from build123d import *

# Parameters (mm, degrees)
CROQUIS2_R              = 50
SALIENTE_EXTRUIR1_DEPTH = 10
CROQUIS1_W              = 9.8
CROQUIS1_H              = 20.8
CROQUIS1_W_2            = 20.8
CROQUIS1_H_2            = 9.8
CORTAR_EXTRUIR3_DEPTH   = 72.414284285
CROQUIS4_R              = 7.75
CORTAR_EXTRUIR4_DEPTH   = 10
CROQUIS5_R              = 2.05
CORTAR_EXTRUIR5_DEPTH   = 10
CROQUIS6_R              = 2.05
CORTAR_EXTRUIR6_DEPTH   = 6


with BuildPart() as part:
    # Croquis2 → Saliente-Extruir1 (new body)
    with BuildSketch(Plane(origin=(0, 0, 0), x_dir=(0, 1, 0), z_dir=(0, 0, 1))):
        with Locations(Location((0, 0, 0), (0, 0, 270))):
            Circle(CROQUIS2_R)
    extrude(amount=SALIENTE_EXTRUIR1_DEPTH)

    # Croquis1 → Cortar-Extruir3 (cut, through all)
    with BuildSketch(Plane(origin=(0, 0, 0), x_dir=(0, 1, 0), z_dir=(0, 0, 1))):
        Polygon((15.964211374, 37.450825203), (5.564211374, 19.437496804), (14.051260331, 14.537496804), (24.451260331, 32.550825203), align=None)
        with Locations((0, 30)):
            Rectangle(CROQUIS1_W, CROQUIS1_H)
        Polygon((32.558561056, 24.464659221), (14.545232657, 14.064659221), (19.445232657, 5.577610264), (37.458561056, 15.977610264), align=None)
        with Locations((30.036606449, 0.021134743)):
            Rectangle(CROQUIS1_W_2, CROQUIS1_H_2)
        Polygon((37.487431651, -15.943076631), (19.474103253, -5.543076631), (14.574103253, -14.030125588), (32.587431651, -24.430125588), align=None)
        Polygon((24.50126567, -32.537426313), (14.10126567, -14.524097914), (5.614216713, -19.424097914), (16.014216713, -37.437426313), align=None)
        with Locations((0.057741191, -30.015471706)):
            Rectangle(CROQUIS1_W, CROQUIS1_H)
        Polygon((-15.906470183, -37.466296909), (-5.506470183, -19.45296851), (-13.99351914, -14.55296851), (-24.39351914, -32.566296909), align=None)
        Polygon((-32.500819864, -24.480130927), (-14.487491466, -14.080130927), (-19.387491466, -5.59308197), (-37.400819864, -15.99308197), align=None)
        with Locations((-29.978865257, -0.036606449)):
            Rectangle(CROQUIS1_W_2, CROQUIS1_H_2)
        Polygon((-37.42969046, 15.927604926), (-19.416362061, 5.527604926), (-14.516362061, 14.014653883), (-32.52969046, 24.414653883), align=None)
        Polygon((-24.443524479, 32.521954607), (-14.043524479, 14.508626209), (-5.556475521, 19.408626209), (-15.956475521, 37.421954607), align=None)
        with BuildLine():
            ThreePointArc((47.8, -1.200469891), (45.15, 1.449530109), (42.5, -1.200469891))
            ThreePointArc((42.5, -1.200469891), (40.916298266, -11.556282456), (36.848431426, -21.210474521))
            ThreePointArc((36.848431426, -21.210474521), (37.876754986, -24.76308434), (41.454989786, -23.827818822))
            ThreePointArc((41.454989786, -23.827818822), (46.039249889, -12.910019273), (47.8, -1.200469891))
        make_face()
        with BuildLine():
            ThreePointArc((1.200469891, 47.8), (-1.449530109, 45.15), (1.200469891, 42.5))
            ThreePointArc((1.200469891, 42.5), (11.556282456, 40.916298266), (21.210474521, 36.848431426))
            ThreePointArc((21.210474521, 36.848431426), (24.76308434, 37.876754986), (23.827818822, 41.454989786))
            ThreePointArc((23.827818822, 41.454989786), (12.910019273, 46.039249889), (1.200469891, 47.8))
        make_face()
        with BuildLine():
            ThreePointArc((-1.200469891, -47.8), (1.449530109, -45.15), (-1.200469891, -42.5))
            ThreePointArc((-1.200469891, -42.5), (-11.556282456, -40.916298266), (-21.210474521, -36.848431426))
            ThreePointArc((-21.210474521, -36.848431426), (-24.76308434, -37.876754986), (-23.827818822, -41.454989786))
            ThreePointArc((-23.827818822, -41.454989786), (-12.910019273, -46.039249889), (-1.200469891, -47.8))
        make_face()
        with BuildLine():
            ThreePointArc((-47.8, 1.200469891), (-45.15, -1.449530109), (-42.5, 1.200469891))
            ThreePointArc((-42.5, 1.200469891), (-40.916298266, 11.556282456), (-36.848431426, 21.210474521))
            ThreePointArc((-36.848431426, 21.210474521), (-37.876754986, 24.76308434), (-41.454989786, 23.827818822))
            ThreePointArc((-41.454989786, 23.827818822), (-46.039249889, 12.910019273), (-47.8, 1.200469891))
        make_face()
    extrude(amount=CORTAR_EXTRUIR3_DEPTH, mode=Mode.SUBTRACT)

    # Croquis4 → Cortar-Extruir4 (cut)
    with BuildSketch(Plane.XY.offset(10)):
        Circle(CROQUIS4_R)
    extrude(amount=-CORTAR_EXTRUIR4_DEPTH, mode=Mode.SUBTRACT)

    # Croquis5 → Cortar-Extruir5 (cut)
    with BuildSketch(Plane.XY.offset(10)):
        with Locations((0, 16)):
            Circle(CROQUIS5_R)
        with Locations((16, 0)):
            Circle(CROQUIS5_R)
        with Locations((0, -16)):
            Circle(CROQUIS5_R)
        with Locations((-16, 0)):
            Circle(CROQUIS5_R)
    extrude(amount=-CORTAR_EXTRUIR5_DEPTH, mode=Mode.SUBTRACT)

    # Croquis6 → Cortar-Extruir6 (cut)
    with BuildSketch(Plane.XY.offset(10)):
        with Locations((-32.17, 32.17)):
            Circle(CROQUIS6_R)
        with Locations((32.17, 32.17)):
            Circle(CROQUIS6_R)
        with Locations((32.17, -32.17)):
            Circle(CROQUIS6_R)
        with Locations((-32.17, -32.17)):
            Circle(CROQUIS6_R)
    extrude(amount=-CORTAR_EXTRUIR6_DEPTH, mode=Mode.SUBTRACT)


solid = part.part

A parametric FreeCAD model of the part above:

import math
import FreeCAD as App
import Part
import Sketcher
Q = App.Units.Quantity

doc = App.newDocument("Part")
body = doc.addObject("PartDesign::Body", "Body")

# Sketch on XY plane
sketch1 = doc.addObject("Sketcher::SketchObject", "Sketch")
body.addObject(sketch1)
sketch1.AttachmentSupport = (doc.XY_Plane, [""])
sketch1.MapMode = "FlatFace"
sketch1.addGeometry(Part.Circle(App.Vector(0, 0, 0), App.Vector(0, 0, 1), 50), False)
sketch1.addConstraint([
    Sketcher.Constraint("Coincident", 0, 3, -1, 1),
    Sketcher.Constraint("Diameter", 0, 100.0),
])
pad1 = doc.addObject("PartDesign::Pad", "Pad")
body.addObject(pad1)
pad1.Profile = sketch1
pad1.Length = 10

# Sketch on XY plane
sketch2 = doc.addObject("Sketcher::SketchObject", "Sketch001")
body.addObject(sketch2)
sketch2.AttachmentSupport = (doc.XY_Plane, [""])
sketch2.MapMode = "FlatFace"
sketch2.addGeometry([
    Part.LineSegment(App.Vector(-37.5, 16, 0), App.Vector(-19.4, 5.6, 0)),  # 0
    Part.LineSegment(App.Vector(-19.4, 5.6, 0), App.Vector(-14.5, 14.1, 0)),  # 1
    Part.LineSegment(App.Vector(-14.5, 14.1, 0), App.Vector(-32.6, 24.5, 0)),  # 2
    Part.LineSegment(App.Vector(-32.6, 24.5, 0), App.Vector(-37.5, 16, 0)),  # 3
    Part.LineSegment(App.Vector(-40.4, -4.9, 0), App.Vector(-19.6, -4.9, 0)),  # 4
    Part.LineSegment(App.Vector(-19.6, -4.9, 0), App.Vector(-19.6, 4.9, 0)),  # 5
    Part.LineSegment(App.Vector(-19.6, 4.9, 0), App.Vector(-40.4, 4.9, 0)),  # 6
    Part.LineSegment(App.Vector(-40.4, 4.9, 0), App.Vector(-40.4, -4.9, 0)),  # 7
    Part.LineSegment(App.Vector(-24.5, 32.6, 0), App.Vector(-14.1, 14.5, 0)),  # 8
    Part.LineSegment(App.Vector(-14.1, 14.5, 0), App.Vector(-5.6, 19.4, 0)),  # 9
    Part.LineSegment(App.Vector(-5.6, 19.4, 0), App.Vector(-16, 37.5, 0)),  # 10
    Part.LineSegment(App.Vector(-16, 37.5, 0), App.Vector(-24.5, 32.6, 0)),  # 11
    Part.LineSegment(App.Vector(-4.9, 19.6, 0), App.Vector(4.9, 19.6, 0)),  # 12
    Part.LineSegment(App.Vector(4.9, 19.6, 0), App.Vector(4.9, 40.4, 0)),  # 13
    Part.LineSegment(App.Vector(4.9, 40.4, 0), App.Vector(-4.9, 40.4, 0)),  # 14
    Part.LineSegment(App.Vector(-4.9, 40.4, 0), App.Vector(-4.9, 19.6, 0)),  # 15
    Part.LineSegment(App.Vector(15.9, 37.5, 0), App.Vector(5.5, 19.5, 0)),  # 16
    Part.LineSegment(App.Vector(5.5, 19.5, 0), App.Vector(14, 14.6, 0)),  # 17
    Part.LineSegment(App.Vector(14, 14.6, 0), App.Vector(24.4, 32.6, 0)),  # 18
    Part.LineSegment(App.Vector(24.4, 32.6, 0), App.Vector(15.9, 37.5, 0)),  # 19
    Part.LineSegment(App.Vector(32.5, 24.5, 0), App.Vector(14.5, 14.1, 0)),  # 20
    Part.LineSegment(App.Vector(14.5, 14.1, 0), App.Vector(19.4, 5.6, 0)),  # 21
    Part.LineSegment(App.Vector(19.4, 5.6, 0), App.Vector(37.4, 16, 0)),  # 22
    Part.LineSegment(App.Vector(37.4, 16, 0), App.Vector(32.5, 24.5, 0)),  # 23
    Part.LineSegment(App.Vector(19.6, -4.8, 0), App.Vector(40.4, -4.8, 0)),  # 24
    Part.LineSegment(App.Vector(40.4, -4.8, 0), App.Vector(40.4, 5, 0)),  # 25
    Part.LineSegment(App.Vector(40.4, 5, 0), App.Vector(19.6, 5, 0)),  # 26
    Part.LineSegment(App.Vector(19.6, 5, 0), App.Vector(19.6, -4.8, 0)),  # 27
    Part.LineSegment(App.Vector(37.5, -15.9, 0), App.Vector(19.5, -5.5, 0)),  # 28
    Part.LineSegment(App.Vector(19.5, -5.5, 0), App.Vector(14.6, -14, 0)),  # 29
    Part.LineSegment(App.Vector(14.6, -14, 0), App.Vector(32.6, -24.4, 0)),  # 30
    Part.LineSegment(App.Vector(32.6, -24.4, 0), App.Vector(37.5, -15.9, 0)),  # 31
    Part.LineSegment(App.Vector(24.5, -32.5, 0), App.Vector(14.1, -14.5, 0)),  # 32
    Part.LineSegment(App.Vector(14.1, -14.5, 0), App.Vector(5.6, -19.4, 0)),  # 33
    Part.LineSegment(App.Vector(5.6, -19.4, 0), App.Vector(16, -37.4, 0)),  # 34
    Part.LineSegment(App.Vector(16, -37.4, 0), App.Vector(24.5, -32.5, 0)),  # 35
    Part.LineSegment(App.Vector(-4.9, -40.4, 0), App.Vector(4.9, -40.4, 0)),  # 36
    Part.LineSegment(App.Vector(4.9, -40.4, 0), App.Vector(4.9, -19.6, 0)),  # 37
    Part.LineSegment(App.Vector(4.9, -19.6, 0), App.Vector(-4.9, -19.6, 0)),  # 38
    Part.LineSegment(App.Vector(-4.9, -19.6, 0), App.Vector(-4.9, -40.4, 0)),  # 39
    Part.LineSegment(App.Vector(-15.9, -37.4, 0), App.Vector(-5.5, -19.4, 0)),  # 40
    Part.LineSegment(App.Vector(-5.5, -19.4, 0), App.Vector(-14, -14.5, 0)),  # 41
    Part.LineSegment(App.Vector(-14, -14.5, 0), App.Vector(-24.4, -32.5, 0)),  # 42
    Part.LineSegment(App.Vector(-24.4, -32.5, 0), App.Vector(-15.9, -37.4, 0)),  # 43
    Part.LineSegment(App.Vector(-32.5, -24.4, 0), App.Vector(-14.5, -14, 0)),  # 44
    Part.LineSegment(App.Vector(-14.5, -14, 0), App.Vector(-19.4, -5.6, 0)),  # 45
    Part.LineSegment(App.Vector(-19.4, -5.6, 0), App.Vector(-37.4, -16, 0)),  # 46
    Part.LineSegment(App.Vector(-37.4, -16, 0), App.Vector(-32.5, -24.4, 0)),  # 47
    Part.ArcOfCircle(Part.Circle(App.Vector(1.2, 45.1, 0), App.Vector(0, 0, 1), 2.6), math.radians(90), math.radians(270)),  # 48
    Part.ArcOfCircle(Part.Circle(App.Vector(0, 0, 0), App.Vector(0, 0, 1), 42.5), math.radians(60), math.radians(88)),  # 49
    Part.ArcOfCircle(Part.Circle(App.Vector(22.5, 39.2, 0), App.Vector(0, 0, 1), 2.6), math.radians(-118), math.radians(59)),  # 50
    Part.ArcOfCircle(Part.Circle(App.Vector(0, 0, 0), App.Vector(0, 0, 1), 47.8), math.radians(60), math.radians(89)),  # 51
    Part.ArcOfCircle(Part.Circle(App.Vector(-45.1, 1.2, 0), App.Vector(0, 0, 1), 2.6), math.radians(180), math.radians(360)),  # 52
    Part.ArcOfCircle(Part.Circle(App.Vector(0, 0, 0), App.Vector(0, 0, 1), 42.5), math.radians(150), math.radians(178)),  # 53
    Part.ArcOfCircle(Part.Circle(App.Vector(-39.2, 22.5, 0), App.Vector(0, 0, 1), 2.6), math.radians(-28), math.radians(149)),  # 54
    Part.ArcOfCircle(Part.Circle(App.Vector(0, 0, 0), App.Vector(0, 0, 1), 47.8), math.radians(150), math.radians(179)),  # 55
    Part.ArcOfCircle(Part.Circle(App.Vector(45.1, -1.2, 0), App.Vector(0, 0, 1), 2.6), math.radians(0), math.radians(180)),  # 56
    Part.ArcOfCircle(Part.Circle(App.Vector(0, 0, 0), App.Vector(0, 0, 1), 42.5), math.radians(-30), math.radians(-2)),  # 57
    Part.ArcOfCircle(Part.Circle(App.Vector(39.2, -22.5, 0), App.Vector(0, 0, 1), 2.6), math.radians(152), math.radians(329)),  # 58
    Part.ArcOfCircle(Part.Circle(App.Vector(0, 0, 0), App.Vector(0, 0, 1), 47.8), math.radians(-30), math.radians(-1)),  # 59
    Part.ArcOfCircle(Part.Circle(App.Vector(-1.2, -45.1, 0), App.Vector(0, 0, 1), 2.6), math.radians(-90), math.radians(90)),  # 60
    Part.ArcOfCircle(Part.Circle(App.Vector(0, 0, 0), App.Vector(0, 0, 1), 42.5), math.radians(-120), math.radians(-92)),  # 61
    Part.ArcOfCircle(Part.Circle(App.Vector(-22.5, -39.2, 0), App.Vector(0, 0, 1), 2.6), math.radians(62), math.radians(239)),  # 62
    Part.ArcOfCircle(Part.Circle(App.Vector(0, 0, 0), App.Vector(0, 0, 1), 47.8), math.radians(-120), math.radians(-91)),  # 63
], False)
sketch2.addConstraint([
    Sketcher.Constraint("Coincident", 0, 2, 1, 1),
    Sketcher.Constraint("Coincident", 1, 2, 2, 1),
    Sketcher.Constraint("Coincident", 2, 2, 3, 1),
    Sketcher.Constraint("Coincident", 3, 2, 0, 1),
    Sketcher.Constraint("Coincident", 4, 2, 5, 1),
    Sketcher.Constraint("Coincident", 5, 2, 6, 1),
    Sketcher.Constraint("Coincident", 6, 2, 7, 1),
    Sketcher.Constraint("Coincident", 7, 2, 4, 1),
    Sketcher.Constraint("Coincident", 8, 2, 9, 1),
    Sketcher.Constraint("Coincident", 9, 2, 10, 1),
    Sketcher.Constraint("Coincident", 10, 2, 11, 1),
    Sketcher.Constraint("Coincident", 11, 2, 8, 1),
    Sketcher.Constraint("Coincident", 12, 2, 13, 1),
    Sketcher.Constraint("Coincident", 13, 2, 14, 1),
    Sketcher.Constraint("Coincident", 14, 2, 15, 1),
    Sketcher.Constraint("Coincident", 15, 2, 12, 1),
    Sketcher.Constraint("Coincident", 16, 2, 17, 1),
    Sketcher.Constraint("Coincident", 17, 2, 18, 1),
    Sketcher.Constraint("Coincident", 18, 2, 19, 1),
    Sketcher.Constraint("Coincident", 19, 2, 16, 1),
    Sketcher.Constraint("Coincident", 20, 2, 21, 1),
    Sketcher.Constraint("Coincident", 21, 2, 22, 1),
    Sketcher.Constraint("Coincident", 22, 2, 23, 1),
    Sketcher.Constraint("Coincident", 23, 2, 20, 1),
    Sketcher.Constraint("Coincident", 24, 2, 25, 1),
    Sketcher.Constraint("Coincident", 25, 2, 26, 1),
    Sketcher.Constraint("Coincident", 26, 2, 27, 1),
    Sketcher.Constraint("Coincident", 27, 2, 24, 1),
    Sketcher.Constraint("Coincident", 28, 2, 29, 1),
    Sketcher.Constraint("Coincident", 29, 2, 30, 1),
    Sketcher.Constraint("Coincident", 30, 2, 31, 1),
    Sketcher.Constraint("Coincident", 31, 2, 28, 1),
    Sketcher.Constraint("Coincident", 32, 2, 33, 1),
    Sketcher.Constraint("Coincident", 33, 2, 34, 1),
    Sketcher.Constraint("Coincident", 34, 2, 35, 1),
    Sketcher.Constraint("Coincident", 35, 2, 32, 1),
    Sketcher.Constraint("Coincident", 36, 2, 37, 1),
    Sketcher.Constraint("Coincident", 37, 2, 38, 1),
    Sketcher.Constraint("Coincident", 38, 2, 39, 1),
    Sketcher.Constraint("Coincident", 39, 2, 36, 1),
    Sketcher.Constraint("Coincident", 40, 2, 41, 1),
    Sketcher.Constraint("Coincident", 41, 2, 42, 1),
    Sketcher.Constraint("Coincident", 42, 2, 43, 1),
    Sketcher.Constraint("Coincident", 43, 2, 40, 1),
    Sketcher.Constraint("Coincident", 44, 2, 45, 1),
    Sketcher.Constraint("Coincident", 45, 2, 46, 1),
    Sketcher.Constraint("Coincident", 46, 2, 47, 1),
    Sketcher.Constraint("Coincident", 47, 2, 44, 1),
    Sketcher.Constraint("Coincident", 48, 2, 49, 2),
    Sketcher.Constraint("Coincident", 49, 1, 50, 1),
    Sketcher.Constraint("Coincident", 50, 2, 51, 1),
    Sketcher.Constraint("Coincident", 51, 2, 48, 1),
    Sketcher.Constraint("Coincident", 52, 2, 53, 2),
    Sketcher.Constraint("Coincident", 53, 1, 54, 1),
    Sketcher.Constraint("Coincident", 54, 2, 55, 1),
    Sketcher.Constraint("Coincident", 55, 2, 52, 1),
    Sketcher.Constraint("Coincident", 56, 2, 57, 2),
    Sketcher.Constraint("Coincident", 57, 1, 58, 1),
    Sketcher.Constraint("Coincident", 58, 2, 59, 1),
    Sketcher.Constraint("Coincident", 59, 2, 56, 1),
    Sketcher.Constraint("Coincident", 60, 2, 61, 2),
    Sketcher.Constraint("Coincident", 61, 1, 62, 1),
    Sketcher.Constraint("Coincident", 62, 2, 63, 1),
    Sketcher.Constraint("Coincident", 63, 2, 60, 1),
    Sketcher.Constraint("Horizontal", 4),
    Sketcher.Constraint("Vertical", 5),
    Sketcher.Constraint("Horizontal", 6),
    Sketcher.Constraint("Vertical", 7),
    Sketcher.Constraint("Horizontal", 12),
    Sketcher.Constraint("Vertical", 13),
    Sketcher.Constraint("Horizontal", 14),
    Sketcher.Constraint("Vertical", 15),
    Sketcher.Constraint("Horizontal", 24),
    Sketcher.Constraint("Vertical", 25),
    Sketcher.Constraint("Horizontal", 26),
    Sketcher.Constraint("Vertical", 27),
    Sketcher.Constraint("Horizontal", 36),
    Sketcher.Constraint("Vertical", 37),
    Sketcher.Constraint("Horizontal", 38),
    Sketcher.Constraint("Vertical", 39),
    Sketcher.Constraint("Coincident", 49, 3, -1, 1),
    Sketcher.Constraint("Coincident", 51, 3, -1, 1),
    Sketcher.Constraint("Coincident", 53, 3, -1, 1),
    Sketcher.Constraint("Coincident", 55, 3, -1, 1),
    Sketcher.Constraint("Coincident", 57, 3, -1, 1),
    Sketcher.Constraint("Coincident", 59, 3, -1, 1),
    Sketcher.Constraint("Coincident", 61, 3, -1, 1),
    Sketcher.Constraint("Coincident", 63, 3, -1, 1),
    Sketcher.Constraint("Equal", 48, 50),
    Sketcher.Constraint("Equal", 50, 52),
    Sketcher.Constraint("Equal", 49, 53),
    Sketcher.Constraint("Equal", 52, 54),
    Sketcher.Constraint("Equal", 51, 55),
    Sketcher.Constraint("Equal", 54, 56),
    Sketcher.Constraint("Equal", 53, 57),
    Sketcher.Constraint("Equal", 56, 58),
    Sketcher.Constraint("Equal", 55, 59),
    Sketcher.Constraint("Equal", 58, 60),
    Sketcher.Constraint("Equal", 57, 61),
    Sketcher.Constraint("Equal", 60, 62),
    Sketcher.Constraint("Equal", 59, 63),
    Sketcher.Constraint("Symmetric", 52, 3, 56, 3, -1, 1),
    Sketcher.Constraint("Symmetric", 54, 3, 58, 3, -1, 1),
    Sketcher.Constraint("Symmetric", 48, 3, 60, 3, -1, 1),
    Sketcher.Constraint("Symmetric", 50, 3, 62, 3, -1, 1),
    Sketcher.Constraint("Perpendicular", 0, 1),
    Sketcher.Constraint("Perpendicular", 1, 2),
    Sketcher.Constraint("Perpendicular", 2, 3),
    Sketcher.Constraint("Perpendicular", 8, 9),
    Sketcher.Constraint("Perpendicular", 9, 10),
    Sketcher.Constraint("Perpendicular", 10, 11),
    Sketcher.Constraint("Parallel", 3, 16),
    Sketcher.Constraint("Perpendicular", 16, 17),
    Sketcher.Constraint("Perpendicular", 17, 18),
    Sketcher.Constraint("Perpendicular", 18, 19),
    Sketcher.Constraint("Parallel", 11, 20),
    Sketcher.Constraint("Perpendicular", 20, 21),
    Sketcher.Constraint("Perpendicular", 21, 22),
    Sketcher.Constraint("Perpendicular", 22, 23),
    Sketcher.Constraint("Parallel", 19, 28),
    Sketcher.Constraint("Perpendicular", 28, 29),
    Sketcher.Constraint("Perpendicular", 29, 30),
    Sketcher.Constraint("Perpendicular", 30, 31),
    Sketcher.Constraint("Parallel", 23, 32),
    Sketcher.Constraint("Perpendicular", 32, 33),
    Sketcher.Constraint("Perpendicular", 33, 34),
    Sketcher.Constraint("Perpendicular", 34, 35),
    Sketcher.Constraint("Parallel", 31, 40),
    Sketcher.Constraint("Perpendicular", 40, 41),
    Sketcher.Constraint("Perpendicular", 41, 42),
    Sketcher.Constraint("Perpendicular", 42, 43),
    Sketcher.Constraint("Parallel", 35, 44),
    Sketcher.Constraint("Perpendicular", 44, 45),
    Sketcher.Constraint("Perpendicular", 45, 46),
    Sketcher.Constraint("Perpendicular", 46, 47),
    Sketcher.Constraint("Horizontal", 52, 2, 55, 2),
    Sketcher.Constraint("Vertical", 48, 2, 51, 2),
    Sketcher.Constraint("Equal", 6, 24),
    Sketcher.Constraint("Equal", 14, 36),
    Sketcher.Constraint("Equal", 38, 5),
    Sketcher.Constraint("Equal", 26, 13),
    Sketcher.Constraint("Equal", 7, 25),
    Sketcher.Constraint("Equal", 15, 37),
    Sketcher.Constraint("Equal", 2, 8),
    Sketcher.Constraint("Equal", 3, 9),
    Sketcher.Constraint("Equal", 10, 16),
    Sketcher.Constraint("Equal", 11, 17),
    Sketcher.Constraint("Equal", 18, 20),
    Sketcher.Constraint("Equal", 19, 21),
    Sketcher.Constraint("Equal", 22, 28),
    Sketcher.Constraint("Equal", 23, 29),
    Sketcher.Constraint("Equal", 30, 32),
    Sketcher.Constraint("Equal", 31, 33),
    Sketcher.Constraint("Equal", 34, 40),
    Sketcher.Constraint("Equal", 35, 41),
    Sketcher.Constraint("Equal", 42, 44),
    Sketcher.Constraint("Equal", 43, 45),
    Sketcher.Constraint("Angle", 0, Q("-30 deg")),
    Sketcher.Constraint("Angle", 8, Q("-60 deg")),
    Sketcher.Constraint("Radius", 48, 2.65),
    Sketcher.Constraint("DistanceX", 4, 1, 4, 2, 20.8),
    Sketcher.Constraint("DistanceX", 12, 1, 12, 2, 9.8),
    Sketcher.Constraint("Distance", 0, 20.8),
    Sketcher.Constraint("Distance", 1, 9.8),
    Sketcher.Constraint("DistanceX", 4, 2, -1, 1, 19.6),
    Sketcher.Constraint("DistanceY", 4, 2, -1, 1, 4.9),
    Sketcher.Constraint("DistanceY", -1, 1, 48, 2, 42.5),
    Sketcher.Constraint("Radius", 49, 42.516951),
    Sketcher.Constraint("DistanceX", -1, 1, 48, 3, 1.20047),
    Sketcher.Constraint("DistanceX", -1, 1, 50, 3, 22.459021),
    Sketcher.Constraint("DistanceY", -1, 1, 52, 3, 1.20047),
    Sketcher.Constraint("DistanceY", -1, 1, 54, 3, 22.459021),
    Sketcher.Constraint("DistanceY", -1, 1, 0, 2, 5.564211),
    Sketcher.Constraint("DistanceX", 8, 2, -1, 1, 14.064659),
    Sketcher.Constraint("DistanceY", -1, 1, 10, 2, 37.458561),
    Sketcher.Constraint("DistanceY", -1, 1, 18, 2, 32.587432),
    Sketcher.Constraint("DistanceX", -1, 1, 24, 2, 40.415472),
    Sketcher.Constraint("DistanceY", 24, 2, -1, 1, 4.842259),
    Sketcher.Constraint("DistanceX", -1, 1, 28, 2, 19.452969),
    Sketcher.Constraint("DistanceY", 28, 2, -1, 1, 5.50647),
    Sketcher.Constraint("DistanceX", -1, 1, 32, 2, 14.080131),
    Sketcher.Constraint("DistanceY", 32, 2, -1, 1, 14.487491),
    Sketcher.Constraint("DistanceY", 42, 2, -1, 1, 32.52969),
    Sketcher.Constraint("DistanceY", -1, 1, 49, 1, 36.848431),
    Sketcher.Constraint("DistanceX", 53, 1, -1, 1, 36.848431),
    Sketcher.Constraint("DistanceX", 0, 2, -1, 1, 19.437497),
    Sketcher.Constraint("DistanceX", -1, 1, 12, 2, 4.878865),
    Sketcher.Constraint("DistanceY", -1, 1, 12, 2, 19.636606),
    Sketcher.Constraint("DistanceX", -1, 1, 16, 2, 5.543077),
    Sketcher.Constraint("DistanceX", -1, 1, 20, 2, 14.524098),
    Sketcher.Constraint("DistanceY", -1, 1, 20, 2, 14.101266),
    Sketcher.Constraint("DistanceX", -1, 1, 36, 2, 4.936606),
    Sketcher.Constraint("DistanceY", 36, 2, -1, 1, 40.378865),
    Sketcher.Constraint("DistanceX", 40, 2, -1, 1, 5.527605),
    Sketcher.Constraint("DistanceX", 44, 2, -1, 1, 14.508626),
    Sketcher.Constraint("DistanceY", 44, 2, -1, 1, 14.043524),
])
pocket1 = doc.addObject("PartDesign::Pocket", "Pocket")
body.addObject(pocket1)
pocket1.Profile = sketch2
pocket1.Type = "ThroughAll"
pocket1.Reversed = True

# Sketch on XY plane
sketch3 = doc.addObject("Sketcher::SketchObject", "Sketch002")
body.addObject(sketch3)
sketch3.AttachmentSupport = (doc.XY_Plane, [""])
sketch3.MapMode = "FlatFace"
sketch3.AttachmentOffset = App.Placement(App.Vector(0, 0, 10), App.Rotation())
sketch3.addGeometry(Part.Circle(App.Vector(0, 0, 0), App.Vector(0, 0, 1), 8), False)
sketch3.addConstraint([
    Sketcher.Constraint("Coincident", 0, 3, -1, 1),
    Sketcher.Constraint("Diameter", 0, 15.5),
])
pocket2 = doc.addObject("PartDesign::Pocket", "Pocket001")
body.addObject(pocket2)
pocket2.Profile = sketch3
pocket2.Length = 10

# Sketch on XY plane
sketch4 = doc.addObject("Sketcher::SketchObject", "Sketch003")
body.addObject(sketch4)
sketch4.AttachmentSupport = (doc.XY_Plane, [""])
sketch4.MapMode = "FlatFace"
sketch4.AttachmentOffset = App.Placement(App.Vector(0, 0, 10), App.Rotation())
sketch4.addGeometry([
    Part.Circle(App.Vector(0, 16, 0), App.Vector(0, 0, 1), 2),
    Part.Circle(App.Vector(16, 0, 0), App.Vector(0, 0, 1), 2),
    Part.Circle(App.Vector(0, -16, 0), App.Vector(0, 0, 1), 2),
    Part.Circle(App.Vector(-16, 0, 0), App.Vector(0, 0, 1), 2),
], False)
sketch4.addConstraint([
    Sketcher.Constraint("Equal", 0, 1),
    Sketcher.Constraint("Equal", 1, 2),
    Sketcher.Constraint("Equal", 2, 3),
    Sketcher.Constraint("Symmetric", 0, 3, 2, 3, -1, 1),
    Sketcher.Constraint("Symmetric", 1, 3, 3, 3, -1, 1),
    Sketcher.Constraint("PointOnObject", 0, 3, -2),
    Sketcher.Constraint("PointOnObject", 1, 3, -1),
    Sketcher.Constraint("Diameter", 0, 4.1),
    Sketcher.Constraint("DistanceY", -1, 1, 0, 3, 16.0),
    Sketcher.Constraint("DistanceX", -1, 1, 1, 3, 16.0),
])
pocket3 = doc.addObject("PartDesign::Pocket", "Pocket002")
body.addObject(pocket3)
pocket3.Profile = sketch4
pocket3.Length = 10

# Sketch on XY plane
sketch5 = doc.addObject("Sketcher::SketchObject", "Sketch004")
body.addObject(sketch5)
sketch5.AttachmentSupport = (doc.XY_Plane, [""])
sketch5.MapMode = "FlatFace"
sketch5.AttachmentOffset = App.Placement(App.Vector(0, 0, 10), App.Rotation())
sketch5.addGeometry([
    Part.Circle(App.Vector(-32.2, 32.2, 0), App.Vector(0, 0, 1), 2),
    Part.Circle(App.Vector(32.2, 32.2, 0), App.Vector(0, 0, 1), 2),
    Part.Circle(App.Vector(32.2, -32.2, 0), App.Vector(0, 0, 1), 2),
    Part.Circle(App.Vector(-32.2, -32.2, 0), App.Vector(0, 0, 1), 2),
], False)
sketch5.addConstraint([
    Sketcher.Constraint("Equal", 0, 1),
    Sketcher.Constraint("Equal", 1, 2),
    Sketcher.Constraint("Equal", 2, 3),
    Sketcher.Constraint("Symmetric", 0, 3, 2, 3, -1, 1),
    Sketcher.Constraint("Symmetric", 1, 3, 3, 3, -1, 1),
    Sketcher.Constraint("Symmetric", 0, 3, 1, 3, -2),
    Sketcher.Constraint("Diameter", 0, 4.1),
    Sketcher.Constraint("DistanceX", 0, 3, -1, 1, 32.17),
    Sketcher.Constraint("DistanceY", -1, 1, 0, 3, 32.17),
])
pocket4 = doc.addObject("PartDesign::Pocket", "Pocket003")
body.addObject(pocket4)
pocket4.Profile = sketch5
pocket4.Length = 6

doc.recompute()
